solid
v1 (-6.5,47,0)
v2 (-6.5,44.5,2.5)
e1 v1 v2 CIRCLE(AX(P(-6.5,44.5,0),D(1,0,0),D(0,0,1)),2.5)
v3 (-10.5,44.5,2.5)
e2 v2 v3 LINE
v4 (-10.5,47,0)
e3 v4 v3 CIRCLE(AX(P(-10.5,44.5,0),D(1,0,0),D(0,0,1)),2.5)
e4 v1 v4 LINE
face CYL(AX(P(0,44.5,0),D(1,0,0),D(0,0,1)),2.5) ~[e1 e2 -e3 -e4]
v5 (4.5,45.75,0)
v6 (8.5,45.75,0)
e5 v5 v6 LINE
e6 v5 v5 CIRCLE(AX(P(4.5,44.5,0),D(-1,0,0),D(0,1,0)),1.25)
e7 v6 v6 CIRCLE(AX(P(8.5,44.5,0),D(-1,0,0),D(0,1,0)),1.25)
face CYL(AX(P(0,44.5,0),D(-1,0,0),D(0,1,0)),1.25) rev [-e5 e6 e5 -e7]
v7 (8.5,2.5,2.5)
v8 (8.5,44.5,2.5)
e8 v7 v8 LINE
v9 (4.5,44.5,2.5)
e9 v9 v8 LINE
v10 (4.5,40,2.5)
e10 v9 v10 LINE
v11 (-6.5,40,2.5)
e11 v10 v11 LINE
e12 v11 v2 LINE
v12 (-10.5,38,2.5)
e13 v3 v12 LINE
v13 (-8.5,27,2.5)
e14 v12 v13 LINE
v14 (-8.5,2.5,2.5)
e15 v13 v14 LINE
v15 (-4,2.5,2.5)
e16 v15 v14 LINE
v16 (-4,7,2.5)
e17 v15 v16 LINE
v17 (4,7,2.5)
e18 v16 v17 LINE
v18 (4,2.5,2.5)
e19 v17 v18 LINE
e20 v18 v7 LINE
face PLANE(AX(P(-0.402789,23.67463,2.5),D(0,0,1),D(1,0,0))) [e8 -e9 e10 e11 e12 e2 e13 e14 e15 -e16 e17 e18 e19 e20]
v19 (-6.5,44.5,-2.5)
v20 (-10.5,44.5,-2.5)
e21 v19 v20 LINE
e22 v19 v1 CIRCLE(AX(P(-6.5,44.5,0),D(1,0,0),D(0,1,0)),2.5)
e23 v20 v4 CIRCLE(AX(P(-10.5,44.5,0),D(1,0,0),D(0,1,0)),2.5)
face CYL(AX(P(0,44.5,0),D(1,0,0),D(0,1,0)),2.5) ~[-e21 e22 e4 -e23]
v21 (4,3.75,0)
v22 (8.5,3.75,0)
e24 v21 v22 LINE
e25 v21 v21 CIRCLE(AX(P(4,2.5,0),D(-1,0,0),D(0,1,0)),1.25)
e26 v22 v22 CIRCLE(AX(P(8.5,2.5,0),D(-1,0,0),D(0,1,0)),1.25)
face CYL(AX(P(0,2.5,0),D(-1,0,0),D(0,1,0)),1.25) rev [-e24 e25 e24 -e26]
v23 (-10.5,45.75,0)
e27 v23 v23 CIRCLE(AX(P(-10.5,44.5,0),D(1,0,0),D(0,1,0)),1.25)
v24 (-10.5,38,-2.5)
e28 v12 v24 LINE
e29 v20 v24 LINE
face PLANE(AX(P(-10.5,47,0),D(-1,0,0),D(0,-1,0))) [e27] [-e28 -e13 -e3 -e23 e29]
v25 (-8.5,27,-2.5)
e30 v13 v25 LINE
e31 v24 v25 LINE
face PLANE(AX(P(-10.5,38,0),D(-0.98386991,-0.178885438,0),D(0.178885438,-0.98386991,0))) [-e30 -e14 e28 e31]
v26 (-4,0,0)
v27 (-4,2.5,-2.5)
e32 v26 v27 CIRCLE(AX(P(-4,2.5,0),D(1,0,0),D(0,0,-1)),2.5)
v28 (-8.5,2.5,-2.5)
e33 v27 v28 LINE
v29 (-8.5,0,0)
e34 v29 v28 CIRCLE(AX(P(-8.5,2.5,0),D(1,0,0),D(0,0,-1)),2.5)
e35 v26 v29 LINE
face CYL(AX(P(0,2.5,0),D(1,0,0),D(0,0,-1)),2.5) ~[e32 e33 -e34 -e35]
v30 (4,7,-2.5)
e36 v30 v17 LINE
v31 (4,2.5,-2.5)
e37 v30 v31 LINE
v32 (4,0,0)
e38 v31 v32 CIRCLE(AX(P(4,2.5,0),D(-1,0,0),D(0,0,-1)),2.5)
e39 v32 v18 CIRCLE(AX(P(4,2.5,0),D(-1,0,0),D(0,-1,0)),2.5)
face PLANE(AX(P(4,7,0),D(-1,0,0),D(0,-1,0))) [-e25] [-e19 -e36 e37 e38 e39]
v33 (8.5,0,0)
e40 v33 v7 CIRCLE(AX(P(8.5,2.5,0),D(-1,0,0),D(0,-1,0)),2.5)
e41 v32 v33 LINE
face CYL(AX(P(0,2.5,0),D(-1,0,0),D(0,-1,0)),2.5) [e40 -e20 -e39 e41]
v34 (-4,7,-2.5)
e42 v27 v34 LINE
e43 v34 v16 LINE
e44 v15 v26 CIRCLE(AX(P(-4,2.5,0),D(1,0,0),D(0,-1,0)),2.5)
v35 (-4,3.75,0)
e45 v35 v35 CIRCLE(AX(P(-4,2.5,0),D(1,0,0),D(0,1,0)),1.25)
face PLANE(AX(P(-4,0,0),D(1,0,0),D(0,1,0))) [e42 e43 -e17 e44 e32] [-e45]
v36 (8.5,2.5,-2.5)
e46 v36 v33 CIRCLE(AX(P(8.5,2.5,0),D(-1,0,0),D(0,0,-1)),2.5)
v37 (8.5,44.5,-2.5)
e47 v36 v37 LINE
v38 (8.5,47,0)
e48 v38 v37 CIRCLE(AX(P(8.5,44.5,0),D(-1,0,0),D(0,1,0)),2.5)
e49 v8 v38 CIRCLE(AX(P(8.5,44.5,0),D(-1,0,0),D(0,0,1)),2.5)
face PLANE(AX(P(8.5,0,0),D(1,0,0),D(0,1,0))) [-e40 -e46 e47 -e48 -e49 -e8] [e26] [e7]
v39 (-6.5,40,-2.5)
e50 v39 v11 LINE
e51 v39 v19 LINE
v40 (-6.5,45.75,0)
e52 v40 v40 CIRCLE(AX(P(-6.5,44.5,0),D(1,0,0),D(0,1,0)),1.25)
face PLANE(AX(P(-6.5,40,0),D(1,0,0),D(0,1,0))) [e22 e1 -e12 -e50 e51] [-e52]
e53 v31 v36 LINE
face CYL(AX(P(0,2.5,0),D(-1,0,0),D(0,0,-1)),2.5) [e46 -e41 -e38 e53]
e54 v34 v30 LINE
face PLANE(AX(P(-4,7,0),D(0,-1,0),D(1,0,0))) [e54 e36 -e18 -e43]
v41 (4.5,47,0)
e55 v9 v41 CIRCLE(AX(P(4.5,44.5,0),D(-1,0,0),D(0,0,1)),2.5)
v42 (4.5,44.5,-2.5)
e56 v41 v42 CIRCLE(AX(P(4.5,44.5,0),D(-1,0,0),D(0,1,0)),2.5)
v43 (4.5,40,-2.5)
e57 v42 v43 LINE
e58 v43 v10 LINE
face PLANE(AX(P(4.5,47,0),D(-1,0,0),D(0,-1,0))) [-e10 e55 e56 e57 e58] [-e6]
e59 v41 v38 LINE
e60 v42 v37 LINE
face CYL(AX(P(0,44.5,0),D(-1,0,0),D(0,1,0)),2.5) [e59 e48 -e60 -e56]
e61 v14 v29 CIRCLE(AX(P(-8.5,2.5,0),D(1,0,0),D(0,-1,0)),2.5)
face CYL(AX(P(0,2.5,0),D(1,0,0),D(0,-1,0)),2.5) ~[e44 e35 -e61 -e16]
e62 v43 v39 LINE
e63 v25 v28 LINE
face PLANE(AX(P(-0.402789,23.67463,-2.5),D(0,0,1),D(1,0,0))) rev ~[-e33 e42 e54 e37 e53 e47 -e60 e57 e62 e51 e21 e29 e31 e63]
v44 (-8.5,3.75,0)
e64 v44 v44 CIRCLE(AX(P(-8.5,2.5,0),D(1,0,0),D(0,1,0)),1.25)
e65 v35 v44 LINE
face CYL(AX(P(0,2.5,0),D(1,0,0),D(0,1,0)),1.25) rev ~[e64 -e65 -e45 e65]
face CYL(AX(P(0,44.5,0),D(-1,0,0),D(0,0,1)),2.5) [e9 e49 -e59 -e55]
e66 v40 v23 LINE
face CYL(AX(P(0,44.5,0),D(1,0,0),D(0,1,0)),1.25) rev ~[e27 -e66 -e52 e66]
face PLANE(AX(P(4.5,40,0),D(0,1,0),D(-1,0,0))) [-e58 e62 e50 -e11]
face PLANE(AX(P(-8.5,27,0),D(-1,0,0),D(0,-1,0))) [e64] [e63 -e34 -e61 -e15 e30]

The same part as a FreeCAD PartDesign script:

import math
import FreeCAD as App
import Part
import Sketcher
from FreeCAD import Vector
Q = App.Units.Quantity

doc = App.newDocument("Part")
params = doc.addObject("Spreadsheet::Sheet", "Params")
for row, (alias, value) in enumerate([
    ("sketch1_width", "8 mm"),
    ("sketch1_width2", "4 mm"),
    ("sketch1_width3", "11 mm"),
    ("sketch1_height", "27 mm"),
    ("sketch1_height2", "7 mm"),
    ("pad1_length", "5 mm"),
    ("sketch2_diameter", "2.5 mm"),
    ("sketch2_radius", "2.5 mm"),
], start=1):
    params.set(f"A{row}", alias)
    params.set(f"B{row}", "=" + value)
    params.setAlias(f"B{row}", alias)

body = doc.addObject("PartDesign::Body", "Body")

sketch1 = doc.addObject("Sketcher::SketchObject", "Sketch")
body.addObject(sketch1)
sketch1.AttachmentSupport = (doc.XY_Plane, [""])
sketch1.MapMode = "FlatFace"
sketch1.addGeometry(Part.LineSegment(Vector(-8.5, 27, 0), Vector(-8.5, 0, 0)), False)
sketch1.addGeometry(Part.LineSegment(Vector(-8.5, 0, 0), Vector(-4, 0, 0)), False)
sketch1.addGeometry(Part.LineSegment(Vector(-4, 0, 0), Vector(-4, 7, 0)), False)
sketch1.addGeometry(Part.LineSegment(Vector(-4, 7, 0), Vector(4, 7, 0)), False)
sketch1.addGeometry(Part.LineSegment(Vector(4, 7, 0), Vector(4, 0, 0)), False)
sketch1.addGeometry(Part.LineSegment(Vector(4, 0, 0), Vector(8.5, 0, 0)), False)
sketch1.addGeometry(Part.LineSegment(Vector(8.5, 0, 0), Vector(8.5, 47, 0)), False)
sketch1.addGeometry(Part.LineSegment(Vector(8.5, 47, 0), Vector(4.5, 47, 0)), False)
sketch1.addGeometry(Part.LineSegment(Vector(4.5, 47, 0), Vector(4.5, 40, 0)), False)
sketch1.addGeometry(Part.LineSegment(Vector(4.5, 40, 0), Vector(-6.5, 40, 0)), False)
sketch1.addGeometry(Part.LineSegment(Vector(-6.5, 40, 0), Vector(-6.5, 47, 0)), False)
sketch1.addGeometry(Part.LineSegment(Vector(-6.5, 47, 0), Vector(-10.5, 47, 0)), False)
sketch1.addGeometry(Part.LineSegment(Vector(-10.5, 47, 0), Vector(-10.5, 38, 0)), False)
sketch1.addGeometry(Part.LineSegment(Vector(-10.5, 38, 0), Vector(-8.5, 27, 0)), False)
sketch1.addConstraint(Sketcher.Constraint("Coincident", 0, 2, 1, 1))
sketch1.addConstraint(Sketcher.Constraint("Coincident", 1, 2, 2, 1))
sketch1.addConstraint(Sketcher.Constraint("Coincident", 2, 2, 3, 1))
sketch1.addConstraint(Sketcher.Constraint("Coincident", 3, 2, 4, 1))
sketch1.addConstraint(Sketcher.Constraint("Coincident", 4, 2, 5, 1))
sketch1.addConstraint(Sketcher.Constraint("Coincident", 5, 2, 6, 1))
sketch1.addConstraint(Sketcher.Constraint("Coincident", 6, 2, 7, 1))
sketch1.addConstraint(Sketcher.Constraint("Coincident", 7, 2, 8, 1))
sketch1.addConstraint(Sketcher.Constraint("Coincident", 8, 2, 9, 1))
sketch1.addConstraint(Sketcher.Constraint("Coincident", 9, 2, 10, 1))
sketch1.addConstraint(Sketcher.Constraint("Coincident", 10, 2, 11, 1))
sketch1.addConstraint(Sketcher.Constraint("Coincident", 11, 2, 12, 1))
sketch1.addConstraint(Sketcher.Constraint("Coincident", 12, 2, 13, 1))
sketch1.addConstraint(Sketcher.Constraint("Coincident", 13, 2, 0, 1))
sketch1.addConstraint(Sketcher.Constraint("Vertical", 0))
sketch1.addConstraint(Sketcher.Constraint("Horizontal", 1))
sketch1.addConstraint(Sketcher.Constraint("Vertical", 2))
sketch1.addConstraint(Sketcher.Constraint("Horizontal", 3))
sketch1.addConstraint(Sketcher.Constraint("Vertical", 4))
sketch1.addConstraint(Sketcher.Constraint("Horizontal", 5))
sketch1.addConstraint(Sketcher.Constraint("Vertical", 6))
sketch1.addConstraint(Sketcher.Constraint("Horizontal", 7))
sketch1.addConstraint(Sketcher.Constraint("Vertical", 8))
sketch1.addConstraint(Sketcher.Constraint("Horizontal", 9))
sketch1.addConstraint(Sketcher.Constraint("Vertical", 10))
sketch1.addConstraint(Sketcher.Constraint("Horizontal", 11))
sketch1.addConstraint(Sketcher.Constraint("Vertical", 12))
sketch1.addConstraint(Sketcher.Constraint("Symmetric", 1, 2, 4, 2, -1, 1))
sketch1.addConstraint(Sketcher.Constraint("Symmetric", 0, 2, 5, 2, -2))
sketch1.addConstraint(Sketcher.Constraint("Horizontal", 7, 2, 10, 2))
sketch1.addConstraint(Sketcher.Constraint("Equal", 7, 11))
sketch1.addConstraint(Sketcher.Constraint("Equal", 4, 8))
sketch1.addConstraint(Sketcher.Constraint("DistanceX", 3, 1, 3, 2, Q("8 mm")))
sketch1.addConstraint(Sketcher.Constraint("DistanceX", 7, 2, 7, 1, Q("4 mm")))
sketch1.addConstraint(Sketcher.Constraint("DistanceX", 9, 2, 9, 1, Q("11 mm")))
sketch1.addConstraint(Sketcher.Constraint("DistanceY", 0, 2, 0, 1, Q("27 mm")))
sketch1.addConstraint(Sketcher.Constraint("DistanceY", 2, 1, 2, 2, Q("7 mm")))
sketch1.addConstraint(Sketcher.Constraint("DistanceY", 6, 1, 6, 2, Q("47 mm")))
sketch1.addConstraint(Sketcher.Constraint("DistanceY", 12, 2, 12, 1, Q("9 mm")))
sketch1.addConstraint(Sketcher.Constraint("DistanceX", 1, 1, 1, 2, Q("4.5 mm")))
sketch1.setExpression("Constraints[32]", "Params.sketch1_width")
sketch1.setExpression("Constraints[33]", "Params.sketch1_width2")
sketch1.setExpression("Constraints[34]", "Params.sketch1_width3")
sketch1.setExpression("Constraints[35]", "Params.sketch1_height")
sketch1.setExpression("Constraints[36]", "Params.sketch1_height2")
pad1 = doc.addObject("PartDesign::Pad", "Pad")
body.addObject(pad1)
pad1.Profile = sketch1
pad1.setExpression("Length", "Params.pad1_length")
pad1.Midplane = True

sketch2 = doc.addObject("Sketcher::SketchObject", "Sketch001")
body.addObject(sketch2)
sketch2.AttachmentSupport = (doc.YZ_Plane, [""])
sketch2.MapMode = "FlatFace"
sketch2.addGeometry(Part.Circle(Vector(2.5, 0, 0), Vector(0, 0, 1), 1.2), False)
sketch2.addGeometry(Part.ArcOfCircle(Part.Circle(Vector(2.5, 0, 0), Vector(0, 0, 1), 2.5), math.radians(180), math.radians(270)), False)
sketch2.addGeometry(Part.LineSegment(Vector(0, 0, 0), Vector(0, -2.5, 0)), False)
sketch2.addGeometry(Part.LineSegment(Vector(0, -2.5, 0), Vector(2.5, -2.5, 0)), False)
sketch2.addGeometry(Part.ArcOfCircle(Part.Circle(Vector(2.5, 0, 0), Vector(0, 0, 1), 2.5), math.radians(90), math.radians(180)), False)
sketch2.addGeometry(Part.LineSegment(Vector(2.5, 2.5, 0), Vector(0, 2.5, 0)), False)
sketch2.addGeometry(Part.LineSegment(Vector(0, 2.5, 0), Vector(0, 0, 0)), False)
sketch2.addGeometry(Part.Circle(Vector(44.5, 0, 0), Vector(0, 0, 1), 1.2), False)
sketch2.addGeometry(Part.ArcOfCircle(Part.Circle(Vector(44.5, 0, 0), Vector(0, 0, 1), 2.5), math.radians(0), math.radians(90)), False)
sketch2.addGeometry(Part.LineSegment(Vector(47, 0, 0), Vector(47, 2.5, 0)), False)
sketch2.addGeometry(Part.LineSegment(Vector(47, 2.5, 0), Vector(44.5, 2.5, 0)), False)
sketch2.addGeometry(Part.ArcOfCircle(Part.Circle(Vector(44.5, 0, 0), Vector(0, 0, 1), 2.5), math.radians(-90), math.radians(0)), False)
sketch2.addGeometry(Part.LineSegment(Vector(44.5, -2.5, 0), Vector(47, -2.5, 0)), False)
sketch2.addGeometry(Part.LineSegment(Vector(47, -2.5, 0), Vector(47, 0, 0)), False)
sketch2.addConstraint(Sketcher.Constraint("Tangent", 1, 1, 2, 1))
sketch2.addConstraint(Sketcher.Constraint("Coincident", 2, 2, 3, 1))
sketch2.addConstraint(Sketcher.Constraint("Tangent", 3, 2, 1, 2))
sketch2.addConstraint(Sketcher.Constraint("Tangent", 4, 1, 5, 1))
sketch2.addConstraint(Sketcher.Constraint("Coincident", 5, 2, 6, 1))
sketch2.addConstraint(Sketcher.Constraint("Tangent", 6, 2, 4, 2))
sketch2.addConstraint(Sketcher.Constraint("Tangent", 8, 1, 9, 1))
sketch2.addConstraint(Sketcher.Constraint("Coincident", 9, 2, 10, 1))
sketch2.addConstraint(Sketcher.Constraint("Tangent", 10, 2, 8, 2))
sketch2.addConstraint(Sketcher.Constraint("Tangent", 11, 1, 12, 1))
sketch2.addConstraint(Sketcher.Constraint("Coincident", 12, 2, 13, 1))
sketch2.addConstraint(Sketcher.Constraint("Tangent", 13, 2, 11, 2))
sketch2.addConstraint(Sketcher.Constraint("Vertical", 2))
sketch2.addConstraint(Sketcher.Constraint("Horizontal", 3))
sketch2.addConstraint(Sketcher.Constraint("Horizontal", 5))
sketch2.addConstraint(Sketcher.Constraint("Vertical", 6))
sketch2.addConstraint(Sketcher.Constraint("Vertical", 9))
sketch2.addConstraint(Sketcher.Constraint("Horizontal", 10))
sketch2.addConstraint(Sketcher.Constraint("Horizontal", 12))
sketch2.addConstraint(Sketcher.Constraint("Vertical", 13))
sketch2.addConstraint(Sketcher.Constraint("Coincident", 1, 1, -1, 1))
sketch2.addConstraint(Sketcher.Constraint("Coincident", 6, 2, -1, 1))
sketch2.addConstraint(Sketcher.Constraint("Coincident", 1, 3, 0, 3))
sketch2.addConstraint(Sketcher.Constraint("Coincident", 8, 3, 7, 3))
sketch2.addConstraint(Sketcher.Constraint("Coincident", 11, 3, 7, 3))
sketch2.addConstraint(Sketcher.Constraint("Equal", 1, 4))
sketch2.addConstraint(Sketcher.Constraint("Equal", 0, 7))
sketch2.addConstraint(Sketcher.Constraint("Equal", 4, 8))
sketch2.addConstraint(Sketcher.Constraint("Equal", 8, 11))
sketch2.addConstraint(Sketcher.Constraint("PointOnObject", 7, 3, -1))
sketch2.addConstraint(Sketcher.Constraint("Diameter", 0, Q("2.5 mm")))
sketch2.addConstraint(Sketcher.Constraint("Radius", 1, Q("2.5 mm")))
sketch2.addConstraint(Sketcher.Constraint("DistanceX", -1, 1, 8, 1, Q("47 mm")))
sketch2.setExpression("Constraints[30]", "Params.sketch2_diameter")
sketch2.setExpression("Constraints[31]", "Params.sketch2_radius")
pocket1 = doc.addObject("PartDesign::Pocket", "Pocket")
body.addObject(pocket1)
pocket1.Profile = sketch2
pocket1.Type = "ThroughAll"
pocket1.Midplane = True

doc.recompute()
